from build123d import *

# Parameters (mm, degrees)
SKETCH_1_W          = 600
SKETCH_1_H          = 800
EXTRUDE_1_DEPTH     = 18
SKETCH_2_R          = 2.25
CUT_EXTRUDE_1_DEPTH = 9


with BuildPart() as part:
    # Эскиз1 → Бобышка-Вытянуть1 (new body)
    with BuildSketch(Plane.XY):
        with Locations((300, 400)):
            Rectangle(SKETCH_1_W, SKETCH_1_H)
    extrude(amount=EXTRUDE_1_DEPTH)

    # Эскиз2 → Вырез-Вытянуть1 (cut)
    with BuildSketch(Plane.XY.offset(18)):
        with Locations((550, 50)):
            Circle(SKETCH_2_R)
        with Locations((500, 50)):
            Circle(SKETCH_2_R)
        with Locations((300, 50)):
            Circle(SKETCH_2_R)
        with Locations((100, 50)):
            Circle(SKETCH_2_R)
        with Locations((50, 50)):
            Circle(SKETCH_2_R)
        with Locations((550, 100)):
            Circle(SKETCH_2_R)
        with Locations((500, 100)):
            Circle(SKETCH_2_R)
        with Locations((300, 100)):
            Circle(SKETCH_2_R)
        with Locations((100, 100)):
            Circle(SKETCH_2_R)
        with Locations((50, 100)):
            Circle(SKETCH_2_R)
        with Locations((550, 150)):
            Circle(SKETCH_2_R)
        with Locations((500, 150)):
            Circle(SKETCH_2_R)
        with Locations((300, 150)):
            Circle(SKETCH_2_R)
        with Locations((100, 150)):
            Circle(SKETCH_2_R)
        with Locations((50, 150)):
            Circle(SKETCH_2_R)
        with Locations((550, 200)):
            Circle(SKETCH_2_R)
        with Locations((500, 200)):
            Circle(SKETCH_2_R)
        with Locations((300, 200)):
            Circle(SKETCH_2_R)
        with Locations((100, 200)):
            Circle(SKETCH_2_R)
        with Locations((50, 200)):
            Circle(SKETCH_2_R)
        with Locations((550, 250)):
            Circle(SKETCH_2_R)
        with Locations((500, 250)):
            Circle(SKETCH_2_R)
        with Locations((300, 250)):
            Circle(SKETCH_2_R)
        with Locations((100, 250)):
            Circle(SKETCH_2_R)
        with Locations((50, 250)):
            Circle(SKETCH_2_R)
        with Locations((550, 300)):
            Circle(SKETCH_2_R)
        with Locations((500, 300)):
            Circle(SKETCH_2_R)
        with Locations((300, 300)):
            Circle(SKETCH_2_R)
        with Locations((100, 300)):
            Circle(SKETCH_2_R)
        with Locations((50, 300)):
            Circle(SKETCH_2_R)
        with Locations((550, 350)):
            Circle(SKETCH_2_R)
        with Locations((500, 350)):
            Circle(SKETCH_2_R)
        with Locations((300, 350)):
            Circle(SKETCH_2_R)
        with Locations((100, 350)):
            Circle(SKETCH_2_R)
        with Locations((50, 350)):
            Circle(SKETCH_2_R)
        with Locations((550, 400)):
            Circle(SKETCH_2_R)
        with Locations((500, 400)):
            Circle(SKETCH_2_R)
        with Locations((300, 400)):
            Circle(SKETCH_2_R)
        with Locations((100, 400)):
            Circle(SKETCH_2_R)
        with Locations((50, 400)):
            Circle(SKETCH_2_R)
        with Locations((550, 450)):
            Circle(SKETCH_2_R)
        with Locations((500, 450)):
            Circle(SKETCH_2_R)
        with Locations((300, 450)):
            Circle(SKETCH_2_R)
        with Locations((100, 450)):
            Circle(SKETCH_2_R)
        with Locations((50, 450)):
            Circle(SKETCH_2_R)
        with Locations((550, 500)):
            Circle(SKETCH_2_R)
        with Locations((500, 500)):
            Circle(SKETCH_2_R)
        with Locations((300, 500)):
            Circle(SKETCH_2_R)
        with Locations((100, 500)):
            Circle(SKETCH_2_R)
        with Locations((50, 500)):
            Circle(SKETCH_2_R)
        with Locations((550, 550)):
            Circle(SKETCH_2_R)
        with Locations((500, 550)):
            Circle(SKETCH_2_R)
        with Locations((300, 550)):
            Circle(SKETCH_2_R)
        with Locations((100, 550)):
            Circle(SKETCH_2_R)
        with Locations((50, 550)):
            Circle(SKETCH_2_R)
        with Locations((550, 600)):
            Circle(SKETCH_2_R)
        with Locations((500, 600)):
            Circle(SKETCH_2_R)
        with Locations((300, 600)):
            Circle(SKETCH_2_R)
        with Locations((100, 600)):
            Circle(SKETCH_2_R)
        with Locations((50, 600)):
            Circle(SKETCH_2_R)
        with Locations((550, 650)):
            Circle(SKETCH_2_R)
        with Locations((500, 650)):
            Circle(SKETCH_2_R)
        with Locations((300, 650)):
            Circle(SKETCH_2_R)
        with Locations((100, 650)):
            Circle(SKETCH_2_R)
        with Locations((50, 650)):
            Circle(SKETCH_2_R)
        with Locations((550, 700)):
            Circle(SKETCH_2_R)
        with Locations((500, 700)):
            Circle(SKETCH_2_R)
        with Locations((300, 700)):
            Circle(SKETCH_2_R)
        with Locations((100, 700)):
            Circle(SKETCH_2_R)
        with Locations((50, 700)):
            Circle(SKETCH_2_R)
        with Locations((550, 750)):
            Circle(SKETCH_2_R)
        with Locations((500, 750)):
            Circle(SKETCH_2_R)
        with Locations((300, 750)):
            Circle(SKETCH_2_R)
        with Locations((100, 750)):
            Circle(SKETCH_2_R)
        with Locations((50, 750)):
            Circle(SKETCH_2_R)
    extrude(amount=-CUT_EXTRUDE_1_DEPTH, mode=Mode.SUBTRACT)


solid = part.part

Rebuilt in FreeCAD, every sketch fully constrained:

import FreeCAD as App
import Part
import Sketcher
Q = App.Units.Quantity


def add_polygon(sketch, points):
    """Adds a closed chain of lines whose ends are joined by coincident constraints."""
    first, n = sketch.GeometryCount, len(points)
    for a, b in zip(points, points[1:] + points[:1]):
        sketch.addGeometry(Part.LineSegment(App.Vector(*a, 0), App.Vector(*b, 0)), False)
    for i in range(n):
        sketch.addConstraint(Sketcher.Constraint("Coincident", first + i, 2, first + (i + 1) % n, 1))

doc = App.newDocument("Part")
params = doc.addObject("Spreadsheet::Sheet", "Params")
for row, (alias, value) in enumerate([
    ("sketch1_width", "600 mm"),
    ("sketch1_height", "800 mm"),
    ("pad1_length", "18 mm"),
    ("sketch2_diameter", "4.5 mm"),
    ("pocket1_length", "9 mm"),
], start=1):
    params.set(f"A{row}", alias)
    params.set(f"B{row}", "=" + value)
    params.setAlias(f"B{row}", alias)

body = doc.addObject("PartDesign::Body", "Body")

# Sketch on XY plane
sketch1 = body.newObject("Sketcher::SketchObject", "Sketch")
sketch1.AttachmentSupport = (doc.getObject("XY_Plane"), [""])
sketch1.MapMode = "FlatFace"
add_polygon(sketch1, [(0, 800), (0, 0), (600, 0), (600, 800)])  # lines 0-3
sketch1.addConstraint(Sketcher.Constraint("Vertical", 0))
sketch1.addConstraint(Sketcher.Constraint("Horizontal", 1))
sketch1.addConstraint(Sketcher.Constraint("Vertical", 2))
sketch1.addConstraint(Sketcher.Constraint("Horizontal", 3))
sketch1.addConstraint(Sketcher.Constraint("Coincident", 0, 2, -1, 1))
sketch1.addConstraint(Sketcher.Constraint("DistanceX", 1, 1, 1, 2, Q("600 mm")))
sketch1.addConstraint(Sketcher.Constraint("DistanceY", 0, 2, 0, 1, Q("800 mm")))
sketch1.setExpression("Constraints[9]", "Params.sketch1_width")
sketch1.setExpression("Constraints[10]", "Params.sketch1_height")
pad1 = body.newObject("PartDesign::Pad", "Pad")
pad1.Profile = sketch1
pad1.setExpression("Length", "Params.pad1_length")

# Sketch on XY plane
sketch2 = body.newObject("Sketcher::SketchObject", "Sketch001")
sketch2.AttachmentSupport = (doc.getObject("XY_Plane"), [""])
sketch2.MapMode = "FlatFace"
sketch2.AttachmentOffset = App.Placement(App.Vector(0, 0, 18), App.Rotation())
sketch2.addGeometry(Part.Circle(App.Vector(550, 50, 0), App.Vector(0, 0, 1), 2.2), False)
sketch2.addGeometry(Part.Circle(App.Vector(500, 50, 0), App.Vector(0, 0, 1), 2.2), False)
sketch2.addGeometry(Part.Circle(App.Vector(300, 50, 0), App.Vector(0, 0, 1), 2.2), False)
sketch2.addGeometry(Part.Circle(App.Vector(100, 50, 0), App.Vector(0, 0, 1), 2.2), False)
sketch2.addGeometry(Part.Circle(App.Vector(50, 50, 0), App.Vector(0, 0, 1), 2.2), False)
sketch2.addGeometry(Part.Circle(App.Vector(550, 100, 0), App.Vector(0, 0, 1), 2.2), False)
sketch2.addGeometry(Part.Circle(App.Vector(500, 100, 0), App.Vector(0, 0, 1), 2.2), False)
sketch2.addGeometry(Part.Circle(App.Vector(300, 100, 0), App.Vector(0, 0, 1), 2.2), False)
sketch2.addGeometry(Part.Circle(App.Vector(100, 100, 0), App.Vector(0, 0, 1), 2.2), False)
sketch2.addGeometry(Part.Circle(App.Vector(50, 100, 0), App.Vector(0, 0, 1), 2.2), False)
sketch2.addGeometry(Part.Circle(App.Vector(550, 150, 0), App.Vector(0, 0, 1), 2.2), False)
sketch2.addGeometry(Part.Circle(App.Vector(500, 150, 0), App.Vector(0, 0, 1), 2.2), False)
sketch2.addGeometry(Part.Circle(App.Vector(300, 150, 0), App.Vector(0, 0, 1), 2.2), False)
sketch2.addGeometry(Part.Circle(App.Vector(100, 150, 0), App.Vector(0, 0, 1), 2.2), False)
sketch2.addGeometry(Part.Circle(App.Vector(50, 150, 0), App.Vector(0, 0, 1), 2.2), False)
sketch2.addGeometry(Part.Circle(App.Vector(550, 200, 0), App.Vector(0, 0, 1), 2.2), False)
sketch2.addGeometry(Part.Circle(App.Vector(500, 200, 0), App.Vector(0, 0, 1), 2.2), False)
sketch2.addGeometry(Part.Circle(App.Vector(300, 200, 0), App.Vector(0, 0, 1), 2.2), False)
sketch2.addGeometry(Part.Circle(App.Vector(100, 200, 0), App.Vector(0, 0, 1), 2.2), False)
sketch2.addGeometry(Part.Circle(App.Vector(50, 200, 0), App.Vector(0, 0, 1), 2.2), False)
sketch2.addGeometry(Part.Circle(App.Vector(550, 250, 0), App.Vector(0, 0, 1), 2.2), False)
sketch2.addGeometry(Part.Circle(App.Vector(500, 250, 0), App.Vector(0, 0, 1), 2.2), False)
sketch2.addGeometry(Part.Circle(App.Vector(300, 250, 0), App.Vector(0, 0, 1), 2.2), False)
sketch2.addGeometry(Part.Circle(App.Vector(100, 250, 0), App.Vector(0, 0, 1), 2.2), False)
sketch2.addGeometry(Part.Circle(App.Vector(50, 250, 0), App.Vector(0, 0, 1), 2.2), False)
sketch2.addGeometry(Part.Circle(App.Vector(550, 300, 0), App.Vector(0, 0, 1), 2.2), False)
sketch2.addGeometry(Part.Circle(App.Vector(500, 300, 0), App.Vector(0, 0, 1), 2.2), False)
sketch2.addGeometry(Part.Circle(App.Vector(300, 300, 0), App.Vector(0, 0, 1), 2.2), False)
sketch2.addGeometry(Part.Circle(App.Vector(100, 300, 0), App.Vector(0, 0, 1), 2.2), False)
sketch2.addGeometry(Part.Circle(App.Vector(50, 300, 0), App.Vector(0, 0, 1), 2.2), False)
sketch2.addGeometry(Part.Circle(App.Vector(550, 350, 0), App.Vector(0, 0, 1), 2.2), False)
sketch2.addGeometry(Part.Circle(App.Vector(500, 350, 0), App.Vector(0, 0, 1), 2.2), False)
sketch2.addGeometry(Part.Circle(App.Vector(300, 350, 0), App.Vector(0, 0, 1), 2.2), False)
sketch2.addGeometry(Part.Circle(App.Vector(100, 350, 0), App.Vector(0, 0, 1), 2.2), False)
sketch2.addGeometry(Part.Circle(App.Vector(50, 350, 0), App.Vector(0, 0, 1), 2.2), False)
sketch2.addGeometry(Part.Circle(App.Vector(550, 400, 0), App.Vector(0, 0, 1), 2.2), False)
sketch2.addGeometry(Part.Circle(App.Vector(500, 400, 0), App.Vector(0, 0, 1), 2.2), False)
sketch2.addGeometry(Part.Circle(App.Vector(300, 400, 0), App.Vector(0, 0, 1), 2.2), False)
sketch2.addGeometry(Part.Circle(App.Vector(100, 400, 0), App.Vector(0, 0, 1), 2.2), False)
sketch2.addGeometry(Part.Circle(App.Vector(50, 400, 0), App.Vector(0, 0, 1), 2.2), False)
sketch2.addGeometry(Part.Circle(App.Vector(550, 450, 0), App.Vector(0, 0, 1), 2.2), False)
sketch2.addGeometry(Part.Circle(App.Vector(500, 450, 0), App.Vector(0, 0, 1), 2.2), False)
sketch2.addGeometry(Part.Circle(App.Vector(300, 450, 0), App.Vector(0, 0, 1), 2.2), False)
sketch2.addGeometry(Part.Circle(App.Vector(100, 450, 0), App.Vector(0, 0, 1), 2.2), False)
sketch2.addGeometry(Part.Circle(App.Vector(50, 450, 0), App.Vector(0, 0, 1), 2.2), False)
sketch2.addGeometry(Part.Circle(App.Vector(550, 500, 0), App.Vector(0, 0, 1), 2.2), False)
sketch2.addGeometry(Part.Circle(App.Vector(500, 500, 0), App.Vector(0, 0, 1), 2.2), False)
sketch2.addGeometry(Part.Circle(App.Vector(300, 500, 0), App.Vector(0, 0, 1), 2.2), False)
sketch2.addGeometry(Part.Circle(App.Vector(100, 500, 0), App.Vector(0, 0, 1), 2.2), False)
sketch2.addGeometry(Part.Circle(App.Vector(50, 500, 0), App.Vector(0, 0, 1), 2.2), False)
sketch2.addGeometry(Part.Circle(App.Vector(550, 550, 0), App.Vector(0, 0, 1), 2.2), False)
sketch2.addGeometry(Part.Circle(App.Vector(500, 550, 0), App.Vector(0, 0, 1), 2.2), False)
sketch2.addGeometry(Part.Circle(App.Vector(300, 550, 0), App.Vector(0, 0, 1), 2.2), False)
sketch2.addGeometry(Part.Circle(App.Vector(100, 550, 0), App.Vector(0, 0, 1), 2.2), False)
sketch2.addGeometry(Part.Circle(App.Vector(50, 550, 0), App.Vector(0, 0, 1), 2.2), False)
sketch2.addGeometry(Part.Circle(App.Vector(550, 600, 0), App.Vector(0, 0, 1), 2.2), False)
sketch2.addGeometry(Part.Circle(App.Vector(500, 600, 0), App.Vector(0, 0, 1), 2.2), False)
sketch2.addGeometry(Part.Circle(App.Vector(300, 600, 0), App.Vector(0, 0, 1), 2.2), False)
sketch2.addGeometry(Part.Circle(App.Vector(100, 600, 0), App.Vector(0, 0, 1), 2.2), False)
sketch2.addGeometry(Part.Circle(App.Vector(50, 600, 0), App.Vector(0, 0, 1), 2.2), False)
sketch2.addGeometry(Part.Circle(App.Vector(550, 650, 0), App.Vector(0, 0, 1), 2.2), False)
sketch2.addGeometry(Part.Circle(App.Vector(500, 650, 0), App.Vector(0, 0, 1), 2.2), False)
sketch2.addGeometry(Part.Circle(App.Vector(300, 650, 0), App.Vector(0, 0, 1), 2.2), False)
sketch2.addGeometry(Part.Circle(App.Vector(100, 650, 0), App.Vector(0, 0, 1), 2.2), False)
sketch2.addGeometry(Part.Circle(App.Vector(50, 650, 0), App.Vector(0, 0, 1), 2.2), False)
sketch2.addGeometry(Part.Circle(App.Vector(550, 700, 0), App.Vector(0, 0, 1), 2.2), False)
sketch2.addGeometry(Part.Circle(App.Vector(500, 700, 0), App.Vector(0, 0, 1), 2.2), False)
sketch2.addGeometry(Part.Circle(App.Vector(300, 700, 0), App.Vector(0, 0, 1), 2.2), False)
sketch2.addGeometry(Part.Circle(App.Vector(100, 700, 0), App.Vector(0, 0, 1), 2.2), False)
sketch2.addGeometry(Part.Circle(App.Vector(50, 700, 0), App.Vector(0, 0, 1), 2.2), False)
sketch2.addGeometry(Part.Circle(App.Vector(550, 750, 0), App.Vector(0, 0, 1), 2.2), False)
sketch2.addGeometry(Part.Circle(App.Vector(500, 750, 0), App.Vector(0, 0, 1), 2.2), False)
sketch2.addGeometry(Part.Circle(App.Vector(300, 750, 0), App.Vector(0, 0, 1), 2.2), False)
sketch2.addGeometry(Part.Circle(App.Vector(100, 750, 0), App.Vector(0, 0, 1), 2.2), False)
sketch2.addGeometry(Part.Circle(App.Vector(50, 750, 0), App.Vector(0, 0, 1), 2.2), False)
sketch2.addConstraint(Sketcher.Constraint("Equal", 0, 1))
sketch2.addConstraint(Sketcher.Constraint("Equal", 1, 2))
sketch2.addConstraint(Sketcher.Constraint("Equal", 2, 3))
sketch2.addConstraint(Sketcher.Constraint("Equal", 3, 4))
sketch2.addConstraint(Sketcher.Constraint("Equal", 4, 5))
sketch2.addConstraint(Sketcher.Constraint("Equal", 5, 6))
sketch2.addConstraint(Sketcher.Constraint("Equal", 6, 7))
sketch2.addConstraint(Sketcher.Constraint("Equal", 7, 8))
sketch2.addConstraint(Sketcher.Constraint("Equal", 8, 9))
sketch2.addConstraint(Sketcher.Constraint("Equal", 9, 10))
sketch2.addConstraint(Sketcher.Constraint("Equal", 10, 11))
sketch2.addConstraint(Sketcher.Constraint("Equal", 11, 12))
sketch2.addConstraint(Sketcher.Constraint("Equal", 12, 13))
sketch2.addConstraint(Sketcher.Constraint("Equal", 13, 14))
sketch2.addConstraint(Sketcher.Constraint("Equal", 14, 15))
sketch2.addConstraint(Sketcher.Constraint("Equal", 15, 16))
sketch2.addConstraint(Sketcher.Constraint("Equal", 16, 17))
sketch2.addConstraint(Sketcher.Constraint("Equal", 17, 18))
sketch2.addConstraint(Sketcher.Constraint("Equal", 18, 19))
sketch2.addConstraint(Sketcher.Constraint("Equal", 19, 20))
sketch2.addConstraint(Sketcher.Constraint("Equal", 20, 21))
sketch2.addConstraint(Sketcher.Constraint("Equal", 21, 22))
sketch2.addConstraint(Sketcher.Constraint("Equal", 22, 23))
sketch2.addConstraint(Sketcher.Constraint("Equal", 23, 24))
sketch2.addConstraint(Sketcher.Constraint("Equal", 24, 25))
sketch2.addConstraint(Sketcher.Constraint("Equal", 25, 26))
sketch2.addConstraint(Sketcher.Constraint("Equal", 26, 27))
sketch2.addConstraint(Sketcher.Constraint("Equal", 27, 28))
sketch2.addConstraint(Sketcher.Constraint("Equal", 28, 29))
sketch2.addConstraint(Sketcher.Constraint("Equal", 29, 30))
sketch2.addConstraint(Sketcher.Constraint("Equal", 30, 31))
sketch2.addConstraint(Sketcher.Constraint("Equal", 31, 32))
sketch2.addConstraint(Sketcher.Constraint("Equal", 32, 33))
sketch2.addConstraint(Sketcher.Constraint("Equal", 33, 34))
sketch2.addConstraint(Sketcher.Constraint("Equal", 34, 35))
sketch2.addConstraint(Sketcher.Constraint("Equal", 35, 36))
sketch2.addConstraint(Sketcher.Constraint("Equal", 36, 37))
sketch2.addConstraint(Sketcher.Constraint("Equal", 37, 38))
sketch2.addConstraint(Sketcher.Constraint("Equal", 38, 39))
sketch2.addConstraint(Sketcher.Constraint("Equal", 39, 40))
sketch2.addConstraint(Sketcher.Constraint("Equal", 40, 41))
sketch2.addConstraint(Sketcher.Constraint("Equal", 41, 42))
sketch2.addConstraint(Sketcher.Constraint("Equal", 42, 43))
sketch2.addConstraint(Sketcher.Constraint("Equal", 43, 44))
sketch2.addConstraint(Sketcher.Constraint("Equal", 44, 45))
sketch2.addConstraint(Sketcher.Constraint("Equal", 45, 46))
sketch2.addConstraint(Sketcher.Constraint("Equal", 46, 47))
sketch2.addConstraint(Sketcher.Constraint("Equal", 47, 48))
sketch2.addConstraint(Sketcher.Constraint("Equal", 48, 49))
sketch2.addConstraint(Sketcher.Constraint("Equal", 49, 50))
sketch2.addConstraint(Sketcher.Constraint("Equal", 50, 51))
sketch2.addConstraint(Sketcher.Constraint("Equal", 51, 52))
sketch2.addConstraint(Sketcher.Constraint("Equal", 52, 53))
sketch2.addConstraint(Sketcher.Constraint("Equal", 53, 54))
sketch2.addConstraint(Sketcher.Constraint("Equal", 54, 55))
sketch2.addConstraint(Sketcher.Constraint("Equal", 55, 56))
sketch2.addConstraint(Sketcher.Constraint("Equal", 56, 57))
sketch2.addConstraint(Sketcher.Constraint("Equal", 57, 58))
sketch2.addConstraint(Sketcher.Constraint("Equal", 58, 59))
sketch2.addConstraint(Sketcher.Constraint("Equal", 59, 60))
sketch2.addConstraint(Sketcher.Constraint("Equal", 60, 61))
sketch2.addConstraint(Sketcher.Constraint("Equal", 61, 62))
sketch2.addConstraint(Sketcher.Constraint("Equal", 62, 63))
sketch2.addConstraint(Sketcher.Constraint("Equal", 63, 64))
sketch2.addConstraint(Sketcher.Constraint("Equal", 64, 65))
sketch2.addConstraint(Sketcher.Constraint("Equal", 65, 66))
sketch2.addConstraint(Sketcher.Constraint("Equal", 66, 67))
sketch2.addConstraint(Sketcher.Constraint("Equal", 67, 68))
sketch2.addConstraint(Sketcher.Constraint("Equal", 68, 69))
sketch2.addConstraint(Sketcher.Constraint("Equal", 69, 70))
sketch2.addConstraint(Sketcher.Constraint("Equal", 70, 71))
sketch2.addConstraint(Sketcher.Constraint("Equal", 71, 72))
sketch2.addConstraint(Sketcher.Constraint("Equal", 72, 73))
sketch2.addConstraint(Sketcher.Constraint("Equal", 73, 74))
sketch2.addConstraint(Sketcher.Constraint("Horizontal", 0, 3, 1, 3))
sketch2.addConstraint(Sketcher.Constraint("Horizontal", 1, 3, 2, 3))
sketch2.addConstraint(Sketcher.Constraint("Horizontal", 2, 3, 3, 3))
sketch2.addConstraint(Sketcher.Constraint("Horizontal", 3, 3, 4, 3))
sketch2.addConstraint(Sketcher.Constraint("Horizontal", 5, 3, 6, 3))
sketch2.addConstraint(Sketcher.Constraint("Horizontal", 6, 3, 7, 3))
sketch2.addConstraint(Sketcher.Constraint("Horizontal", 7, 3, 8, 3))
sketch2.addConstraint(Sketcher.Constraint("Horizontal", 8, 3, 9, 3))
sketch2.addConstraint(Sketcher.Constraint("Horizontal", 10, 3, 11, 3))
sketch2.addConstraint(Sketcher.Constraint("Horizontal", 11, 3, 12, 3))
sketch2.addConstraint(Sketcher.Constraint("Horizontal", 12, 3, 13, 3))
sketch2.addConstraint(Sketcher.Constraint("Horizontal", 13, 3, 14, 3))
sketch2.addConstraint(Sketcher.Constraint("Horizontal", 15, 3, 16, 3))
sketch2.addConstraint(Sketcher.Constraint("Horizontal", 16, 3, 17, 3))
sketch2.addConstraint(Sketcher.Constraint("Horizontal", 17, 3, 18, 3))
sketch2.addConstraint(Sketcher.Constraint("Horizontal", 18, 3, 19, 3))
sketch2.addConstraint(Sketcher.Constraint("Horizontal", 20, 3, 21, 3))
sketch2.addConstraint(Sketcher.Constraint("Horizontal", 21, 3, 22, 3))
sketch2.addConstraint(Sketcher.Constraint("Horizontal", 22, 3, 23, 3))
sketch2.addConstraint(Sketcher.Constraint("Horizontal", 23, 3, 24, 3))
sketch2.addConstraint(Sketcher.Constraint("Horizontal", 25, 3, 26, 3))
sketch2.addConstraint(Sketcher.Constraint("Horizontal", 26, 3, 27, 3))
sketch2.addConstraint(Sketcher.Constraint("Horizontal", 27, 3, 28, 3))
sketch2.addConstraint(Sketcher.Constraint("Horizontal", 28, 3, 29, 3))
sketch2.addConstraint(Sketcher.Constraint("Horizontal", 30, 3, 31, 3))
sketch2.addConstraint(Sketcher.Constraint("Horizontal", 31, 3, 32, 3))
sketch2.addConstraint(Sketcher.Constraint("Horizontal", 32, 3, 33, 3))
sketch2.addConstraint(Sketcher.Constraint("Horizontal", 33, 3, 34, 3))
sketch2.addConstraint(Sketcher.Constraint("Horizontal", 35, 3, 36, 3))
sketch2.addConstraint(Sketcher.Constraint("Horizontal", 36, 3, 37, 3))
sketch2.addConstraint(Sketcher.Constraint("Horizontal", 37, 3, 38, 3))
sketch2.addConstraint(Sketcher.Constraint("Horizontal", 38, 3, 39, 3))
sketch2.addConstraint(Sketcher.Constraint("Horizontal", 40, 3, 41, 3))
sketch2.addConstraint(Sketcher.Constraint("Horizontal", 41, 3, 42, 3))
sketch2.addConstraint(Sketcher.Constraint("Horizontal", 42, 3, 43, 3))
sketch2.addConstraint(Sketcher.Constraint("Horizontal", 43, 3, 44, 3))
sketch2.addConstraint(Sketcher.Constraint("Horizontal", 45, 3, 46, 3))
sketch2.addConstraint(Sketcher.Constraint("Horizontal", 46, 3, 47, 3))
sketch2.addConstraint(Sketcher.Constraint("Horizontal", 47, 3, 48, 3))
sketch2.addConstraint(Sketcher.Constraint("Horizontal", 48, 3, 49, 3))
sketch2.addConstraint(Sketcher.Constraint("Horizontal", 50, 3, 51, 3))
sketch2.addConstraint(Sketcher.Constraint("Horizontal", 51, 3, 52, 3))
sketch2.addConstraint(Sketcher.Constraint("Horizontal", 52, 3, 53, 3))
sketch2.addConstraint(Sketcher.Constraint("Horizontal", 53, 3, 54, 3))
sketch2.addConstraint(Sketcher.Constraint("Horizontal", 55, 3, 56, 3))
sketch2.addConstraint(Sketcher.Constraint("Horizontal", 56, 3, 57, 3))
sketch2.addConstraint(Sketcher.Constraint("Horizontal", 57, 3, 58, 3))
sketch2.addConstraint(Sketcher.Constraint("Horizontal", 58, 3, 59, 3))
sketch2.addConstraint(Sketcher.Constraint("Horizontal", 60, 3, 61, 3))
sketch2.addConstraint(Sketcher.Constraint("Horizontal", 61, 3, 62, 3))
sketch2.addConstraint(Sketcher.Constraint("Horizontal", 62, 3, 63, 3))
sketch2.addConstraint(Sketcher.Constraint("Horizontal", 63, 3, 64, 3))
sketch2.addConstraint(Sketcher.Constraint("Horizontal", 65, 3, 66, 3))
sketch2.addConstraint(Sketcher.Constraint("Horizontal", 66, 3, 67, 3))
sketch2.addConstraint(Sketcher.Constraint("Horizontal", 67, 3, 68, 3))
sketch2.addConstraint(Sketcher.Constraint("Horizontal", 68, 3, 69, 3))
sketch2.addConstraint(Sketcher.Constraint("Horizontal", 70, 3, 71, 3))
sketch2.addConstraint(Sketcher.Constraint("Horizontal", 71, 3, 72, 3))
sketch2.addConstraint(Sketcher.Constraint("Horizontal", 72, 3, 73, 3))
sketch2.addConstraint(Sketcher.Constraint("Horizontal", 73, 3, 74, 3))
sketch2.addConstraint(Sketcher.Constraint("Vertical", 0, 3, 5, 3))
sketch2.addConstraint(Sketcher.Constraint("Vertical", 1, 3, 6, 3))
sketch2.addConstraint(Sketcher.Constraint("Vertical", 2, 3, 7, 3))
sketch2.addConstraint(Sketcher.Constraint("Vertical", 3, 3, 8, 3))
sketch2.addConstraint(Sketcher.Constraint("Vertical", 4, 3, 9, 3))
sketch2.addConstraint(Sketcher.Constraint("Vertical", 5, 3, 10, 3))
sketch2.addConstraint(Sketcher.Constraint("Vertical", 6, 3, 11, 3))
sketch2.addConstraint(Sketcher.Constraint("Vertical", 7, 3, 12, 3))
sketch2.addConstraint(Sketcher.Constraint("Vertical", 8, 3, 13, 3))
sketch2.addConstraint(Sketcher.Constraint("Vertical", 9, 3, 14, 3))
sketch2.addConstraint(Sketcher.Constraint("Vertical", 10, 3, 15, 3))
sketch2.addConstraint(Sketcher.Constraint("Vertical", 11, 3, 16, 3))
sketch2.addConstraint(Sketcher.Constraint("Vertical", 12, 3, 17, 3))
sketch2.addConstraint(Sketcher.Constraint("Vertical", 13, 3, 18, 3))
sketch2.addConstraint(Sketcher.Constraint("Vertical", 14, 3, 19, 3))
sketch2.addConstraint(Sketcher.Constraint("Vertical", 15, 3, 20, 3))
sketch2.addConstraint(Sketcher.Constraint("Vertical", 16, 3, 21, 3))
sketch2.addConstraint(Sketcher.Constraint("Vertical", 17, 3, 22, 3))
sketch2.addConstraint(Sketcher.Constraint("Vertical", 18, 3, 23, 3))
sketch2.addConstraint(Sketcher.Constraint("Vertical", 19, 3, 24, 3))
sketch2.addConstraint(Sketcher.Constraint("Vertical", 20, 3, 25, 3))
sketch2.addConstraint(Sketcher.Constraint("Vertical", 21, 3, 26, 3))
sketch2.addConstraint(Sketcher.Constraint("Vertical", 22, 3, 27, 3))
sketch2.addConstraint(Sketcher.Constraint("Vertical", 23, 3, 28, 3))
sketch2.addConstraint(Sketcher.Constraint("Vertical", 24, 3, 29, 3))
sketch2.addConstraint(Sketcher.Constraint("Vertical", 25, 3, 30, 3))
sketch2.addConstraint(Sketcher.Constraint("Vertical", 26, 3, 31, 3))
sketch2.addConstraint(Sketcher.Constraint("Vertical", 27, 3, 32, 3))
sketch2.addConstraint(Sketcher.Constraint("Vertical", 28, 3, 33, 3))
sketch2.addConstraint(Sketcher.Constraint("Vertical", 29, 3, 34, 3))
sketch2.addConstraint(Sketcher.Constraint("Vertical", 30, 3, 35, 3))
sketch2.addConstraint(Sketcher.Constraint("Vertical", 31, 3, 36, 3))
sketch2.addConstraint(Sketcher.Constraint("Vertical", 32, 3, 37, 3))
sketch2.addConstraint(Sketcher.Constraint("Vertical", 33, 3, 38, 3))
sketch2.addConstraint(Sketcher.Constraint("Vertical", 34, 3, 39, 3))
sketch2.addConstraint(Sketcher.Constraint("Vertical", 35, 3, 40, 3))
sketch2.addConstraint(Sketcher.Constraint("Vertical", 36, 3, 41, 3))
sketch2.addConstraint(Sketcher.Constraint("Vertical", 37, 3, 42, 3))
sketch2.addConstraint(Sketcher.Constraint("Vertical", 38, 3, 43, 3))
sketch2.addConstraint(Sketcher.Constraint("Vertical", 39, 3, 44, 3))
sketch2.addConstraint(Sketcher.Constraint("Vertical", 40, 3, 45, 3))
sketch2.addConstraint(Sketcher.Constraint("Vertical", 41, 3, 46, 3))
sketch2.addConstraint(Sketcher.Constraint("Vertical", 42, 3, 47, 3))
sketch2.addConstraint(Sketcher.Constraint("Vertical", 43, 3, 48, 3))
sketch2.addConstraint(Sketcher.Constraint("Vertical", 44, 3, 49, 3))
sketch2.addConstraint(Sketcher.Constraint("Vertical", 45, 3, 50, 3))
sketch2.addConstraint(Sketcher.Constraint("Vertical", 46, 3, 51, 3))
sketch2.addConstraint(Sketcher.Constraint("Vertical", 47, 3, 52, 3))
sketch2.addConstraint(Sketcher.Constraint("Vertical", 48, 3, 53, 3))
sketch2.addConstraint(Sketcher.Constraint("Vertical", 49, 3, 54, 3))
sketch2.addConstraint(Sketcher.Constraint("Vertical", 50, 3, 55, 3))
sketch2.addConstraint(Sketcher.Constraint("Vertical", 51, 3, 56, 3))
sketch2.addConstraint(Sketcher.Constraint("Vertical", 52, 3, 57, 3))
sketch2.addConstraint(Sketcher.Constraint("Vertical", 53, 3, 58, 3))
sketch2.addConstraint(Sketcher.Constraint("Vertical", 54, 3, 59, 3))
sketch2.addConstraint(Sketcher.Constraint("Vertical", 55, 3, 60, 3))
sketch2.addConstraint(Sketcher.Constraint("Vertical", 56, 3, 61, 3))
sketch2.addConstraint(Sketcher.Constraint("Vertical", 57, 3, 62, 3))
sketch2.addConstraint(Sketcher.Constraint("Vertical", 58, 3, 63, 3))
sketch2.addConstraint(Sketcher.Constraint("Vertical", 59, 3, 64, 3))
sketch2.addConstraint(Sketcher.Constraint("Vertical", 60, 3, 65, 3))
sketch2.addConstraint(Sketcher.Constraint("Vertical", 61, 3, 66, 3))
sketch2.addConstraint(Sketcher.Constraint("Vertical", 62, 3, 67, 3))
sketch2.addConstraint(Sketcher.Constraint("Vertical", 63, 3, 68, 3))
sketch2.addConstraint(Sketcher.Constraint("Vertical", 64, 3, 69, 3))
sketch2.addConstraint(Sketcher.Constraint("Vertical", 65, 3, 70, 3))
sketch2.addConstraint(Sketcher.Constraint("Vertical", 66, 3, 71, 3))
sketch2.addConstraint(Sketcher.Constraint("Vertical", 67, 3, 72, 3))
sketch2.addConstraint(Sketcher.Constraint("Vertical", 68, 3, 73, 3))
sketch2.addConstraint(Sketcher.Constraint("Vertical", 69, 3, 74, 3))
sketch2.addConstraint(Sketcher.Constraint("Diameter", 0, Q("4.5 mm")))
sketch2.addConstraint(Sketcher.Constraint("DistanceX", -1, 1, 0, 3, Q("550 mm")))
sketch2.addConstraint(Sketcher.Constraint("DistanceY", -1, 1, 0, 3, Q("50 mm")))
sketch2.addConstraint(Sketcher.Constraint("DistanceX", -1, 1, 1, 3, Q("500 mm")))
sketch2.addConstraint(Sketcher.Constraint("DistanceX", -1, 1, 2, 3, Q("300 mm")))
sketch2.addConstraint(Sketcher.Constraint("DistanceX", -1, 1, 3, 3, Q("100 mm")))
sketch2.addConstraint(Sketcher.Constraint("DistanceX", -1, 1, 4, 3, Q("50 mm")))
sketch2.addConstraint(Sketcher.Constraint("DistanceY", -1, 1, 5, 3, Q("100 mm")))
sketch2.addConstraint(Sketcher.Constraint("DistanceY", -1, 1, 10, 3, Q("150 mm")))
sketch2.addConstraint(Sketcher.Constraint("DistanceY", -1, 1, 15, 3, Q("200 mm")))
sketch2.addConstraint(Sketcher.Constraint("DistanceY", -1, 1, 20, 3, Q("250 mm")))
sketch2.addConstraint(Sketcher.Constraint("DistanceY", -1, 1, 25, 3, Q("300 mm")))
sketch2.addConstraint(Sketcher.Constraint("DistanceY", -1, 1, 30, 3, Q("350 mm")))
sketch2.addConstraint(Sketcher.Constraint("DistanceY", -1, 1, 35, 3, Q("400 mm")))
sketch2.addConstraint(Sketcher.Constraint("DistanceY", -1, 1, 40, 3, Q("450 mm")))
sketch2.addConstraint(Sketcher.Constraint("DistanceY", -1, 1, 45, 3, Q("500 mm")))
sketch2.addConstraint(Sketcher.Constraint("DistanceY", -1, 1, 50, 3, Q("550 mm")))
sketch2.addConstraint(Sketcher.Constraint("DistanceY", -1, 1, 55, 3, Q("600 mm")))
sketch2.addConstraint(Sketcher.Constraint("DistanceY", -1, 1, 60, 3, Q("650 mm")))
sketch2.addConstraint(Sketcher.Constraint("DistanceY", -1, 1, 65, 3, Q("700 mm")))
sketch2.addConstraint(Sketcher.Constraint("DistanceY", -1, 1, 70, 3, Q("750 mm")))
sketch2.setExpression("Constraints[204]", "Params.sketch2_diameter")
pocket1 = body.newObject("PartDesign::Pocket", "Pocket")
pocket1.Profile = sketch2
pocket1.setExpression("Length", "Params.pocket1_length")

doc.recompute()
